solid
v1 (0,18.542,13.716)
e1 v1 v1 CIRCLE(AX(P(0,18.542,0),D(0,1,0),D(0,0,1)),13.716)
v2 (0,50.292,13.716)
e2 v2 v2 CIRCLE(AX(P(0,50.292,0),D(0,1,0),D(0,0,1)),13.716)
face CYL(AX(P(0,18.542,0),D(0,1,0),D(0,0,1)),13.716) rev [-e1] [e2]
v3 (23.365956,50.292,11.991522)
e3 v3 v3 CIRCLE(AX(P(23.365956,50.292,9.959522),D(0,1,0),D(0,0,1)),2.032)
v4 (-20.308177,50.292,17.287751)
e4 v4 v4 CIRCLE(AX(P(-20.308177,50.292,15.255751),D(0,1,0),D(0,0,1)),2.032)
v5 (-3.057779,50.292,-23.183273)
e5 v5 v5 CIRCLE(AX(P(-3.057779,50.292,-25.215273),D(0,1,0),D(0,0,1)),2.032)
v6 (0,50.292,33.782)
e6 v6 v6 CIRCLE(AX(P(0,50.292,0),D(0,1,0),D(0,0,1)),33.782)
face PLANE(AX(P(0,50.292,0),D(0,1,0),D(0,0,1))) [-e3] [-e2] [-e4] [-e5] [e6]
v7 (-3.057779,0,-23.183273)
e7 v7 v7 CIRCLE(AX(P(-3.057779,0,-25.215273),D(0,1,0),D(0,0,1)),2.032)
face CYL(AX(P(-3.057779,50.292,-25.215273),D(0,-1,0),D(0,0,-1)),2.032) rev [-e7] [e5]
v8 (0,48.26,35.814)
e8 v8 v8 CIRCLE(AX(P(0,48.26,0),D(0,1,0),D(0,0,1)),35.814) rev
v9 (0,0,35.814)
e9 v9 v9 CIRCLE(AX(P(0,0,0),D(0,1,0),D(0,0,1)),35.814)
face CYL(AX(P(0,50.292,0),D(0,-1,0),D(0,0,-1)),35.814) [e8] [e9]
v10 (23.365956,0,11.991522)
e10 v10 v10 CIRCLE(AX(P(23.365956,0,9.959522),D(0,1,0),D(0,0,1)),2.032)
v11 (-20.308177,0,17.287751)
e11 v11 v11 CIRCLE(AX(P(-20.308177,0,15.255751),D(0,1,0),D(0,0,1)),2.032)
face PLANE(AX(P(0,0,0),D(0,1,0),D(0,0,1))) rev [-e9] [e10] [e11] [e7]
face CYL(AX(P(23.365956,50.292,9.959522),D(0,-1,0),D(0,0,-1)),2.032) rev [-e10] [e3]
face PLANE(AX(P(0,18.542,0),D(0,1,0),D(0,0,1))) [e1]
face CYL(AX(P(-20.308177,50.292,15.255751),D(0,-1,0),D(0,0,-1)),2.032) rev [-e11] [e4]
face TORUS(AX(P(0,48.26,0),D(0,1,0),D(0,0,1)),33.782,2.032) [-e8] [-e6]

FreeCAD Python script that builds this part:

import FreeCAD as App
import Part
import Sketcher

V = App.Vector
Q = App.Units.Quantity


def edges_at(feature, points):
    """Names of the edges that pass closest to the given points."""
    edges = feature.Shape.Edges
    near = lambda p: min(range(len(edges)), key=lambda i: edges[i].distToShape(Part.Vertex(*p))[0])
    return sorted({f"Edge{near(p) + 1}" for p in points})

doc = App.newDocument("Part")
body = doc.addObject("PartDesign::Body", "Body")

sketch1 = body.newObject("Sketcher::SketchObject", "Sketch")
sketch1.AttachmentSupport = (doc.getObject("XZ_Plane"), [""])
sketch1.MapMode = "FlatFace"
sketch1.addGeometry(Part.Circle(V(0, 0, 0), V(0, 0, 1), 35.8), False)
sketch1.addGeometry(Part.Circle(V(-3.1, -25.2, 0), V(0, 0, 1), 2), False)
sketch1.addGeometry(Part.Circle(V(-20.3, 15.3, 0), V(0, 0, 1), 2), False)
sketch1.addGeometry(Part.Circle(V(23.4, 10, 0), V(0, 0, 1), 2), False)
sketch1.addConstraint(Sketcher.Constraint("Coincident", 0, 3, -1, 1))
sketch1.addConstraint(Sketcher.Constraint("Equal", 1, 2))
sketch1.addConstraint(Sketcher.Constraint("Equal", 2, 3))
sketch1.addConstraint(Sketcher.Constraint("Diameter", 0, Q("2.82 in")))
sketch1.addConstraint(Sketcher.Constraint("Diameter", 1, Q("0.16 in")))
sketch1.addConstraint(Sketcher.Constraint("DistanceX", 2, 3, 1, 3, 17.250398))
sketch1.addConstraint(Sketcher.Constraint("DistanceX", 1, 3, -1, 1, 3.057779))
sketch1.addConstraint(Sketcher.Constraint("DistanceY", -1, 1, 2, 3, 15.255751))
sketch1.addConstraint(Sketcher.Constraint("DistanceY", 3, 3, 2, 3, 5.296229))
sketch1.addConstraint(Sketcher.Constraint("DistanceY", 1, 3, -1, 1, 25.215273))
sketch1.addConstraint(Sketcher.Constraint("DistanceX", -1, 1, 3, 3, 23.365956))
pad1 = body.newObject("PartDesign::Pad", "Pad")
pad1.Profile = sketch1
pad1.Length = Q("1.98 in")
pad1.Reversed = True

sketch2 = body.newObject("Sketcher::SketchObject", "Sketch001")
sketch2.AttachmentSupport = (doc.getObject("XZ_Plane"), [""])
sketch2.MapMode = "FlatFace"
sketch2.AttachmentOffset = App.Placement(V(0, 0, -1.98 * 25.4), App.Rotation())
sketch2.addGeometry(Part.Circle(V(0, 0, 0), V(0, 0, 1), 14), False)
sketch2.addConstraint(Sketcher.Constraint("Coincident", 0, 3, -1, 1))
sketch2.addConstraint(Sketcher.Constraint("Diameter", 0, Q("1.08 in")))
pocket1 = body.newObject("PartDesign::Pocket", "Pocket")
pocket1.Profile = sketch2
pocket1.Length = Q("1.25 in")
pocket1.Reversed = True
doc.recompute()

fillet = body.newObject("PartDesign::Fillet", "Fillet")
fillet.Base = (pocket1, edges_at(pocket1, [(0, 50.292, -35.814)]))
fillet.Radius = Q("0.08 in")

doc.recompute()
